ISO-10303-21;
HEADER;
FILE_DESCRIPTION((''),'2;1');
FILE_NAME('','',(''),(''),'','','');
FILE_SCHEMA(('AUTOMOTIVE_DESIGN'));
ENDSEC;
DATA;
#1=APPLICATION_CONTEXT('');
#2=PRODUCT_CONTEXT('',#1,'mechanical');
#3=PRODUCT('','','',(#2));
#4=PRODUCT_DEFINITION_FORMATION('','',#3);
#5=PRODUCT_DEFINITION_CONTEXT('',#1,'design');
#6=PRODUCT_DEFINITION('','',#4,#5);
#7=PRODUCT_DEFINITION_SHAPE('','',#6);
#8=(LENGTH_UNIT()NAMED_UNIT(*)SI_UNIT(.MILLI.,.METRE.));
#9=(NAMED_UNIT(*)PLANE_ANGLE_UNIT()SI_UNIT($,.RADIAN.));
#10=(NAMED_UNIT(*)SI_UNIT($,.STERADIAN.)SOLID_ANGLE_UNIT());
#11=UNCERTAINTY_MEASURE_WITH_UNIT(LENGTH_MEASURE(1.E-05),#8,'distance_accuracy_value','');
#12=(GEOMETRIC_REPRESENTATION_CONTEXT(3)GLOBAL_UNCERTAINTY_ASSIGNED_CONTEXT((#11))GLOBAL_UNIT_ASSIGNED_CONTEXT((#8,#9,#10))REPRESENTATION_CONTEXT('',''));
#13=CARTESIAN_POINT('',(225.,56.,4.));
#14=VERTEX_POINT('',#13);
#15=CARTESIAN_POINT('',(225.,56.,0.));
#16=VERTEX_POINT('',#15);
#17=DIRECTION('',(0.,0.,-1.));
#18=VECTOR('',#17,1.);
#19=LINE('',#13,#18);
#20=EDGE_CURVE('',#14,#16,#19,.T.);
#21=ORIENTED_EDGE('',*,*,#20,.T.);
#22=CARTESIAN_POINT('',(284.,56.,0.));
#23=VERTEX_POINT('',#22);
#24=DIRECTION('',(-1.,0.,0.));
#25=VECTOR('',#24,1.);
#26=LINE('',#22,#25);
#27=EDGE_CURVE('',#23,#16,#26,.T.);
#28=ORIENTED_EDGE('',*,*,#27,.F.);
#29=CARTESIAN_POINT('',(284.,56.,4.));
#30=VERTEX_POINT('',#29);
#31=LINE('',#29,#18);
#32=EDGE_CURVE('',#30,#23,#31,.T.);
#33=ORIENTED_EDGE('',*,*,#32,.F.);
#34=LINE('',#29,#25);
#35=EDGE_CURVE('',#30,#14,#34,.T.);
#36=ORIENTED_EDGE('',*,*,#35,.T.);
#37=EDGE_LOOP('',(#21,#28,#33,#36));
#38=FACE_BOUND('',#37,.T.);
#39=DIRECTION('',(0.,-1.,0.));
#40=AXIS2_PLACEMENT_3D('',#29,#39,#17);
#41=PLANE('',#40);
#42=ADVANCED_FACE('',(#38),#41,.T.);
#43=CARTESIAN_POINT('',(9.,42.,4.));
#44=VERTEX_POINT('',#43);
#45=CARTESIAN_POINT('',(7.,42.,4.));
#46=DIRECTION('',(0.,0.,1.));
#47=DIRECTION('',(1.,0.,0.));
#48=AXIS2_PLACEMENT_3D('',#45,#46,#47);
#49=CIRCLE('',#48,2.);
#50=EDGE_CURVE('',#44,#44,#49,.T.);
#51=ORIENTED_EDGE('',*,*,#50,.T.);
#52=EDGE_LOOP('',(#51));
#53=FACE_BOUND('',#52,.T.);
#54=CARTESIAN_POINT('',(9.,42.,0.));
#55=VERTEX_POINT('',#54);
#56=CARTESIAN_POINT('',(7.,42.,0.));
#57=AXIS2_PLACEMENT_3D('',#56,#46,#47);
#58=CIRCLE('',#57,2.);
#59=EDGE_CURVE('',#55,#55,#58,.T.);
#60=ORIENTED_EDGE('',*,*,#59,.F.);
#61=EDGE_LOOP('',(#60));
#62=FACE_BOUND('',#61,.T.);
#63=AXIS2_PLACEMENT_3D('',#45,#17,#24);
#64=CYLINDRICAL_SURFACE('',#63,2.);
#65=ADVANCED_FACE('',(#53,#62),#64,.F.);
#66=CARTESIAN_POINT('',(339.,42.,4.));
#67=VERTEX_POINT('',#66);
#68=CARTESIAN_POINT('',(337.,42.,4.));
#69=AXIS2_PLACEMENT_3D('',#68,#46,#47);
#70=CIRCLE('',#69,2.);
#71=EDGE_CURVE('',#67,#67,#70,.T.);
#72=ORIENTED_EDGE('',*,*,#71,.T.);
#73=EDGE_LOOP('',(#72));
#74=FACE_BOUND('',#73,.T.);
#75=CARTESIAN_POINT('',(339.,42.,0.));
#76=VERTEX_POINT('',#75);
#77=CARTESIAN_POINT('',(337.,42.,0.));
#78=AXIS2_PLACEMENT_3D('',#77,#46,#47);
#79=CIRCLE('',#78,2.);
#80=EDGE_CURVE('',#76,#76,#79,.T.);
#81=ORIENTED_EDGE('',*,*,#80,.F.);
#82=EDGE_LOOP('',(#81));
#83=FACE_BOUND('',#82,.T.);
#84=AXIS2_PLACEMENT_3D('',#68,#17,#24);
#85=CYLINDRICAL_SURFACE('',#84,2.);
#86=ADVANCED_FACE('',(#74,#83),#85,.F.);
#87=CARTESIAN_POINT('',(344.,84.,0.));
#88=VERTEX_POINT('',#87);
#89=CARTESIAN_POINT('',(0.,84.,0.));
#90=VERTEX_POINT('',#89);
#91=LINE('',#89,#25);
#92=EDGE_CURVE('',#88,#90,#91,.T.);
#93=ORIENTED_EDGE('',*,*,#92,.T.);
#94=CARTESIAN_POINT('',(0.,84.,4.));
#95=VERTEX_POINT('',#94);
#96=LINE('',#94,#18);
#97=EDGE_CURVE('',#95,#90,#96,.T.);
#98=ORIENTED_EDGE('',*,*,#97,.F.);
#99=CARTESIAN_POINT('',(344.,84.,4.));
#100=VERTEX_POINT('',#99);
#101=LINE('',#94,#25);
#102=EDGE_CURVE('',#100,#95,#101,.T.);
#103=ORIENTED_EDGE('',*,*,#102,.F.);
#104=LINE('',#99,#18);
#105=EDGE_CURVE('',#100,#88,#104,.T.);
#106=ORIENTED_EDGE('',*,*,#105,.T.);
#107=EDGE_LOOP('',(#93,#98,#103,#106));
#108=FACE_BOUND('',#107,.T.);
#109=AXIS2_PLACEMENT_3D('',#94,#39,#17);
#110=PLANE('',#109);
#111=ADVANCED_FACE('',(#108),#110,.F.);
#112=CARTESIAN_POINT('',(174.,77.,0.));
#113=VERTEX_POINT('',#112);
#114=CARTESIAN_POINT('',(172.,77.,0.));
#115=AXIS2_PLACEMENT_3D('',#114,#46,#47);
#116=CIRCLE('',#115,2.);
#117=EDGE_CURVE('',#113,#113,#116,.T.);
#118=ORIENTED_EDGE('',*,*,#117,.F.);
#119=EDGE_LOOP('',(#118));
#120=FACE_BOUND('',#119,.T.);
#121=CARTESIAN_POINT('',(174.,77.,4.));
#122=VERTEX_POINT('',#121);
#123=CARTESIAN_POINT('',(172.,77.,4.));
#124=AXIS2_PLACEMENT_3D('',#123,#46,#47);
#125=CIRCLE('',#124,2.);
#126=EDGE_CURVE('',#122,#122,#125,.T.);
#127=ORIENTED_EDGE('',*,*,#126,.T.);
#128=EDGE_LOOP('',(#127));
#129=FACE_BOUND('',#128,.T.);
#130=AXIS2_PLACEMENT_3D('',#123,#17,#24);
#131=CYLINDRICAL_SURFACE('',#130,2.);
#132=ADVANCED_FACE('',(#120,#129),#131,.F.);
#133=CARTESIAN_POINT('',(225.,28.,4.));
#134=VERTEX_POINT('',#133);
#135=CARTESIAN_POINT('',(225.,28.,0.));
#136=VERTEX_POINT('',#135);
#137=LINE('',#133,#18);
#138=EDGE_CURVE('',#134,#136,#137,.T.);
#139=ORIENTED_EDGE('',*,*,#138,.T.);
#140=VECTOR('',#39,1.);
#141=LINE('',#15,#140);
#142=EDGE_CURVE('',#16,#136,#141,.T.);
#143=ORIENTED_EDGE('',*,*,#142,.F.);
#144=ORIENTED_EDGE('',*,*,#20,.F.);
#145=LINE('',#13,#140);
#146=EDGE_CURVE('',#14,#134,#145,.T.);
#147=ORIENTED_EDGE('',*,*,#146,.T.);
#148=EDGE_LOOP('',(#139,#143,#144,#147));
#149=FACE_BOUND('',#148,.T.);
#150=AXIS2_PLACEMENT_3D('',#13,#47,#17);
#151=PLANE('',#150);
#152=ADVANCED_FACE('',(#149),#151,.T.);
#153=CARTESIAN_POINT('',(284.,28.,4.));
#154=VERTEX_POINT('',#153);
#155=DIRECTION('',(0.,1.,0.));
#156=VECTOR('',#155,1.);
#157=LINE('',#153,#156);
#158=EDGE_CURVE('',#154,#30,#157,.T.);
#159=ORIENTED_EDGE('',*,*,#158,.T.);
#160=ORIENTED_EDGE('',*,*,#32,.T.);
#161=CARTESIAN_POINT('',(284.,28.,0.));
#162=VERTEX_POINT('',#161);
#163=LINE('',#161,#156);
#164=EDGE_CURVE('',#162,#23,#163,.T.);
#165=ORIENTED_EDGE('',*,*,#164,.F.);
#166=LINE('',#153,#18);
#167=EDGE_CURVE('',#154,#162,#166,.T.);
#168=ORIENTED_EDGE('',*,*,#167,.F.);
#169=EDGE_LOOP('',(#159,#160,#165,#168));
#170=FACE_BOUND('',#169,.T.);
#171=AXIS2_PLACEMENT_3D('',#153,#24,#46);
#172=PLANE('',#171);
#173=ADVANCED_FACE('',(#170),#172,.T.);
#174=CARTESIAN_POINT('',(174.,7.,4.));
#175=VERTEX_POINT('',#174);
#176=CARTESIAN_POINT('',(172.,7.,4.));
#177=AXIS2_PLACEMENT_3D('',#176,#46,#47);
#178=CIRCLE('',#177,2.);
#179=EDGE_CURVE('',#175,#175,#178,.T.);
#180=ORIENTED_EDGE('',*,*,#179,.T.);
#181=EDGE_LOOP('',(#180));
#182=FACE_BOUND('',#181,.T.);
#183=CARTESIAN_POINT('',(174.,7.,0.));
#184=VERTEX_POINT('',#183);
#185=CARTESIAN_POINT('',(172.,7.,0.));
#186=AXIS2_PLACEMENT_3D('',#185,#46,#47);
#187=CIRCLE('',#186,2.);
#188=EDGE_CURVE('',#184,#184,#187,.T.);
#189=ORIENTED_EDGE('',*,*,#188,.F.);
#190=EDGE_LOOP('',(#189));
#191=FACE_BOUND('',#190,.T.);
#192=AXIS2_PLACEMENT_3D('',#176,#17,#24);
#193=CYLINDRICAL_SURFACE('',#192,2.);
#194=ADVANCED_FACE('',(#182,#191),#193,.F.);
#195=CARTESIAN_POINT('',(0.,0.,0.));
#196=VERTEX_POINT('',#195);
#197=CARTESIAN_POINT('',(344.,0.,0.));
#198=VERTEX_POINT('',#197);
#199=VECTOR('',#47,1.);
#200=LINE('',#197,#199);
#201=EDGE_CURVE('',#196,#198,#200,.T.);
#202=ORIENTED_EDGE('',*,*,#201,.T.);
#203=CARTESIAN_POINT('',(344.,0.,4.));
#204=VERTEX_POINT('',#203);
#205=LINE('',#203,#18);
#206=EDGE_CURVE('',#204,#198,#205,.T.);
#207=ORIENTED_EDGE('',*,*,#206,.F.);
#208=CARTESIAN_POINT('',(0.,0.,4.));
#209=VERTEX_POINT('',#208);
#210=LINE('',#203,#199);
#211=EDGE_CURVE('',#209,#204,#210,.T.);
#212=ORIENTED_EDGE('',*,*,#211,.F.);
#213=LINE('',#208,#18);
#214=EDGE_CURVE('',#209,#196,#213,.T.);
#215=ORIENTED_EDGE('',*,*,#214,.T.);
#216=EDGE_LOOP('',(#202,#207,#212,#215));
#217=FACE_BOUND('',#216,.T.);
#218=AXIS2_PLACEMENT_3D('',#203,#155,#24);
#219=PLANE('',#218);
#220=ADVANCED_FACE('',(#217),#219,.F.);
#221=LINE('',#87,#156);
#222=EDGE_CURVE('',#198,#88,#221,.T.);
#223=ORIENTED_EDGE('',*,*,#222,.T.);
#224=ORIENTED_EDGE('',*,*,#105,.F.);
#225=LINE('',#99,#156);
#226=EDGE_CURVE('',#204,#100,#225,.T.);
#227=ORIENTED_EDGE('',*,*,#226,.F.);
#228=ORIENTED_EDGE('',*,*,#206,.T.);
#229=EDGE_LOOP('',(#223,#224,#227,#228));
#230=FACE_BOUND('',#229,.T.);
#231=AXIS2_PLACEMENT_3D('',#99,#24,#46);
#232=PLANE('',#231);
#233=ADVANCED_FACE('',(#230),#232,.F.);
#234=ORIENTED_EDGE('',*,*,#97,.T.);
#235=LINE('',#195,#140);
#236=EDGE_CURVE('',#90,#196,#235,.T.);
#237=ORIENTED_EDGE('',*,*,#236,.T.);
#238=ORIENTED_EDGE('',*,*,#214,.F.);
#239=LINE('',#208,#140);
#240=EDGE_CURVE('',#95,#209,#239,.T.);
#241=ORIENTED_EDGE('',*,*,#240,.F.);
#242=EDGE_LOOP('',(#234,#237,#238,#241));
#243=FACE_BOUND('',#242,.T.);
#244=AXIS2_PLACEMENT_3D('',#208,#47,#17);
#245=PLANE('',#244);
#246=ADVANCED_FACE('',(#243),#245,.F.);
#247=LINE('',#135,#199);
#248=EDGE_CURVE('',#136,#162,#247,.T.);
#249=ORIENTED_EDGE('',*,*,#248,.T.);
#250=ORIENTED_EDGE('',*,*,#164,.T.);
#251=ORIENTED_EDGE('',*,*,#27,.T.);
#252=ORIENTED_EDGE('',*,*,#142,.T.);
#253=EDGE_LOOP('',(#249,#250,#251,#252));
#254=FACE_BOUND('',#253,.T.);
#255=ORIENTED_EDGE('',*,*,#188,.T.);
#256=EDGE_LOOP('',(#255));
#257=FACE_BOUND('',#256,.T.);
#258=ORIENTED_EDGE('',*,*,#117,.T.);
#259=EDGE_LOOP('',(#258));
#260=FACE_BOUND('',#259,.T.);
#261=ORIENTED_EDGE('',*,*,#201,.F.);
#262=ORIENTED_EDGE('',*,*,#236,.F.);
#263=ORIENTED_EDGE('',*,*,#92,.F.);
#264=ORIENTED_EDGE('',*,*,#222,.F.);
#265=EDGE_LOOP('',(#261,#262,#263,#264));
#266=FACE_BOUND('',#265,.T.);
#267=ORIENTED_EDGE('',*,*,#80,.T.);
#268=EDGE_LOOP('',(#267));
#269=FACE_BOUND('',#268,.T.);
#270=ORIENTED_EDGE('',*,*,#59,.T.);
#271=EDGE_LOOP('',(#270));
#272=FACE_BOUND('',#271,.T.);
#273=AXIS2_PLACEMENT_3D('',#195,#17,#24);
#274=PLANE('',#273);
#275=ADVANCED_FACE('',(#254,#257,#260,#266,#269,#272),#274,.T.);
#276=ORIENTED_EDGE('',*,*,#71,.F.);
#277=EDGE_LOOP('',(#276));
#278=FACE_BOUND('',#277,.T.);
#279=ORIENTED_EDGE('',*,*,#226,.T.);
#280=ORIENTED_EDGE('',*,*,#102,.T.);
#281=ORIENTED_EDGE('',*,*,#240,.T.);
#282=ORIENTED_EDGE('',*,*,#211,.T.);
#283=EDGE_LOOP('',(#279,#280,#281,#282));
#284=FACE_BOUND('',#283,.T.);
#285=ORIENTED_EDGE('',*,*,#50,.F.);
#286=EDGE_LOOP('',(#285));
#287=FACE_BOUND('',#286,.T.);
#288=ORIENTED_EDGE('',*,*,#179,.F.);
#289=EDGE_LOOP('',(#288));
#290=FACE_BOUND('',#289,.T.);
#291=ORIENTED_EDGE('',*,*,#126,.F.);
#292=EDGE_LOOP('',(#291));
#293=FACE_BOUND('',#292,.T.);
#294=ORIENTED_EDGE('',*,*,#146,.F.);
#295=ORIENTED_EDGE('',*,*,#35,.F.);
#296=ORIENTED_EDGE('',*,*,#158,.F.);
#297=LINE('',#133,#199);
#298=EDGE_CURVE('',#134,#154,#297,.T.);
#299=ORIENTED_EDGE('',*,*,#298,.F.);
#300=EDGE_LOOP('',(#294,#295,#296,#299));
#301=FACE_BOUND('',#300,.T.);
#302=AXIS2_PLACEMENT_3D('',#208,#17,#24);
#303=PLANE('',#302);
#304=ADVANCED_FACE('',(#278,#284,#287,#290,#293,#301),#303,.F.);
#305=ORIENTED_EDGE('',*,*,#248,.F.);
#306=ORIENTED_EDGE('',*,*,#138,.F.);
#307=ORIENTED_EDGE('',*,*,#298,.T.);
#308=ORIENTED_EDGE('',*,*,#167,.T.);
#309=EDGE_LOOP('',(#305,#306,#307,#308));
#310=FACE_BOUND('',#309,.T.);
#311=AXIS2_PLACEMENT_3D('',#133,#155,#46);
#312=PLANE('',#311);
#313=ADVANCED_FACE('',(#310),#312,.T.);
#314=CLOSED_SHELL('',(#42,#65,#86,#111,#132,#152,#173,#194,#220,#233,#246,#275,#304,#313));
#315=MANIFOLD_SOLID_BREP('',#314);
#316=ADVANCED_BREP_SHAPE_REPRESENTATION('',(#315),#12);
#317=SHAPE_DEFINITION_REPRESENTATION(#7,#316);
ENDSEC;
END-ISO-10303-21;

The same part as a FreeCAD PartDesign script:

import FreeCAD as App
import Part
import Sketcher

V = App.Vector


def add_polygon(sketch, points):
    """Adds a closed chain of lines whose ends are joined by coincident constraints."""
    first, n = sketch.GeometryCount, len(points)
    for a, b in zip(points, points[1:] + points[:1]):
        sketch.addGeometry(Part.LineSegment(App.Vector(*a, 0), App.Vector(*b, 0)), False)
    for i in range(n):
        sketch.addConstraint(Sketcher.Constraint("Coincident", first + i, 2, first + (i + 1) % n, 1))

doc = App.newDocument("Part")
body = doc.addObject("PartDesign::Body", "Body")

# Sketch on XY plane
sketch1 = body.newObject("Sketcher::SketchObject", "Sketch")
sketch1.AttachmentSupport = (doc.getObject("XY_Plane"), [""])
sketch1.MapMode = "FlatFace"
add_polygon(sketch1, [(0, 84), (0, 0), (344, 0), (344, 84)])  # lines 0-3
sketch1.addGeometry(Part.Circle(V(172, 7, 0), V(0, 0, 1), 2), False)  # 4
sketch1.addGeometry(Part.Circle(V(7, 42, 0), V(0, 0, 1), 2), False)  # 5
add_polygon(sketch1, [(284, 28), (225, 28), (225, 56), (284, 56)])  # lines 6-9
sketch1.addGeometry(Part.Circle(V(337, 42, 0), V(0, 0, 1), 2), False)  # 10
sketch1.addGeometry(Part.Circle(V(172, 77, 0), V(0, 0, 1), 2), False)  # 11
sketch1.addConstraint([
    Sketcher.Constraint("Vertical", 0),
    Sketcher.Constraint("Horizontal", 1),
    Sketcher.Constraint("Vertical", 2),
    Sketcher.Constraint("Horizontal", 3),
    Sketcher.Constraint("Horizontal", 6),
    Sketcher.Constraint("Vertical", 7),
    Sketcher.Constraint("Horizontal", 8),
    Sketcher.Constraint("Vertical", 9),
    Sketcher.Constraint("Coincident", 0, 2, -1, 1),
    Sketcher.Constraint("Equal", 4, 5),
    Sketcher.Constraint("Equal", 5, 10),
    Sketcher.Constraint("Equal", 10, 11),
    Sketcher.Constraint("Horizontal", 5, 3, 10, 3),
    Sketcher.Constraint("Vertical", 4, 3, 11, 3),
    Sketcher.Constraint("Diameter", 4, 4.0),
    Sketcher.Constraint("DistanceX", 1, 1, 1, 2, 344.0),
    Sketcher.Constraint("DistanceX", 6, 2, 6, 1, 59.0),
    Sketcher.Constraint("DistanceY", 0, 2, 0, 1, 84.0),
    Sketcher.Constraint("DistanceY", 7, 1, 7, 2, 28.0),
    Sketcher.Constraint("DistanceX", -1, 1, 4, 3, 172.0),
    Sketcher.Constraint("DistanceY", -1, 1, 4, 3, 7.0),
    Sketcher.Constraint("DistanceX", -1, 1, 5, 3, 7.0),
    Sketcher.Constraint("DistanceY", -1, 1, 5, 3, 42.0),
    Sketcher.Constraint("DistanceX", -1, 1, 10, 3, 337.0),
    Sketcher.Constraint("DistanceY", -1, 1, 11, 3, 77.0),
    Sketcher.Constraint("DistanceX", -1, 1, 6, 2, 225.0),
    Sketcher.Constraint("DistanceY", -1, 1, 6, 2, 28.0),
])
pad1 = body.newObject("PartDesign::Pad", "Pad")
pad1.Profile = sketch1
pad1.Length = 4

doc.recompute()
